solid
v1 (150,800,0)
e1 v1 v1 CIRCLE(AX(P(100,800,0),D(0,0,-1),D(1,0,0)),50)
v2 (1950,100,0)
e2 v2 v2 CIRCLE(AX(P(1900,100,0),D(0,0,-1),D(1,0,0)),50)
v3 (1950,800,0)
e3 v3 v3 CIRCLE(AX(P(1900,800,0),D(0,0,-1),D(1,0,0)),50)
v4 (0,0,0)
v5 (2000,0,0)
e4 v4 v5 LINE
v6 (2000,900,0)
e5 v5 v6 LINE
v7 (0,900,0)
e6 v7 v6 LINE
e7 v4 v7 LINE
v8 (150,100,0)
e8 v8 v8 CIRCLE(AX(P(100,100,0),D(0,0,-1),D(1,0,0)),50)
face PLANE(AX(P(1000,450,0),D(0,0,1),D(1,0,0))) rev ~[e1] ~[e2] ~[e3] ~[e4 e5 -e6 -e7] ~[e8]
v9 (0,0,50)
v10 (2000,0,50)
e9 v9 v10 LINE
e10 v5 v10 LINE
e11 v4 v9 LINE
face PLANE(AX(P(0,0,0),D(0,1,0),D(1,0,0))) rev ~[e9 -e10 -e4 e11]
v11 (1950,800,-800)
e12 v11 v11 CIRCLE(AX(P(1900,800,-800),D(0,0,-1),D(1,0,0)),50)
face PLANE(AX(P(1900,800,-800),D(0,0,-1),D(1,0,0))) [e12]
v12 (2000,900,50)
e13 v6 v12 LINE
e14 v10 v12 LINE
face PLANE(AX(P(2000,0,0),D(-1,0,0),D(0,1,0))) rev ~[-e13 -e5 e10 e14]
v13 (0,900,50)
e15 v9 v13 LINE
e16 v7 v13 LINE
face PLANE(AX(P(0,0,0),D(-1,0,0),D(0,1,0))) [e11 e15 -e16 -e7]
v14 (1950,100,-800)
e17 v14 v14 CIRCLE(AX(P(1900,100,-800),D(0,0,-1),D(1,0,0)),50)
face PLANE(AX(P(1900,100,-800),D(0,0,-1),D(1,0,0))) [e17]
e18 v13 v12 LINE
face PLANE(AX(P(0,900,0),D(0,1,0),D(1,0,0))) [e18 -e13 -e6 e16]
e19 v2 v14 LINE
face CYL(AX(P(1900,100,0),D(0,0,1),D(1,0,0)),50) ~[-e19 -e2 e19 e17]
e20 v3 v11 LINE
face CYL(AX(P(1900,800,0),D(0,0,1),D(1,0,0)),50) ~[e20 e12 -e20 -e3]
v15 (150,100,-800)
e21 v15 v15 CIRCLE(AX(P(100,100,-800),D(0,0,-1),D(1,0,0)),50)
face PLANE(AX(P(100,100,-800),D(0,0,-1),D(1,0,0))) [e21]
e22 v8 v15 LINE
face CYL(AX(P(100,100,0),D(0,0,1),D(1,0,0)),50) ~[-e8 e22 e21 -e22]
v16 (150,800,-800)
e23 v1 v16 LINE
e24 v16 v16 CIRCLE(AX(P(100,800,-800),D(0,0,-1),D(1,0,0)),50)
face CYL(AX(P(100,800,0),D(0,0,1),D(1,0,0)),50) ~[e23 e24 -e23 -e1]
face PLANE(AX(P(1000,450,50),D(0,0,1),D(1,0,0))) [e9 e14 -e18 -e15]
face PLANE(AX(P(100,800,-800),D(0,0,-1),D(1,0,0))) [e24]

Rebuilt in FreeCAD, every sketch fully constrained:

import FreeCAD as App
import Part
import Sketcher
Q = App.Units.Quantity

doc = App.newDocument("Part")
body = doc.addObject("PartDesign::Body", "Body")

# Sketch on XY plane
sketch1 = doc.addObject("Sketcher::SketchObject", "Sketch")
body.addObject(sketch1)
sketch1.AttachmentSupport = (doc.XY_Plane, [""])
sketch1.MapMode = "FlatFace"
sketch1.addGeometry([
    Part.LineSegment(App.Vector(0, 900, 0), App.Vector(0, 0, 0)),
    Part.LineSegment(App.Vector(0, 0, 0), App.Vector(2000, 0, 0)),
    Part.LineSegment(App.Vector(2000, 0, 0), App.Vector(2000, 900, 0)),
    Part.LineSegment(App.Vector(2000, 900, 0), App.Vector(0, 900, 0)),
], False)
sketch1.addConstraint([
    Sketcher.Constraint("Coincident", 0, 2, 1, 1),
    Sketcher.Constraint("Coincident", 1, 2, 2, 1),
    Sketcher.Constraint("Coincident", 2, 2, 3, 1),
    Sketcher.Constraint("Coincident", 3, 2, 0, 1),
    Sketcher.Constraint("Vertical", 0),
    Sketcher.Constraint("Horizontal", 1),
    Sketcher.Constraint("Vertical", 2),
    Sketcher.Constraint("Horizontal", 3),
    Sketcher.Constraint("Coincident", 0, 2, -1, 1),
    Sketcher.Constraint("DistanceX", 1, 1, 1, 2, Q("2000 mm")),
    Sketcher.Constraint("DistanceY", 0, 2, 0, 1, Q("900 mm")),
])
pad1 = doc.addObject("PartDesign::Pad", "Pad")
body.addObject(pad1)
pad1.Profile = sketch1
pad1.Length = 50

# Sketch on XY plane
sketch2 = doc.addObject("Sketcher::SketchObject", "Sketch001")
body.addObject(sketch2)
sketch2.AttachmentSupport = (doc.XY_Plane, [""])
sketch2.MapMode = "FlatFace"
sketch2.addGeometry([
    Part.Circle(App.Vector(100, 100, 0), App.Vector(0, 0, 1), 50),
    Part.Circle(App.Vector(1900, 100, 0), App.Vector(0, 0, 1), 50),
    Part.Circle(App.Vector(1900, 800, 0), App.Vector(0, 0, 1), 50),
    Part.Circle(App.Vector(100, 800, 0), App.Vector(0, 0, 1), 50),
], False)
sketch2.addConstraint([
    Sketcher.Constraint("Equal", 0, 1),
    Sketcher.Constraint("Equal", 1, 2),
    Sketcher.Constraint("Equal", 2, 3),
    Sketcher.Constraint("Horizontal", 0, 3, 1, 3),
    Sketcher.Constraint("Horizontal", 2, 3, 3, 3),
    Sketcher.Constraint("Vertical", 1, 3, 2, 3),
    Sketcher.Constraint("Vertical", 0, 3, 3, 3),
    Sketcher.Constraint("Diameter", 0, Q("100 mm")),
    Sketcher.Constraint("DistanceX", -1, 1, 0, 3, Q("100 mm")),
    Sketcher.Constraint("DistanceY", -1, 1, 0, 3, Q("100 mm")),
    Sketcher.Constraint("DistanceX", -1, 1, 1, 3, Q("1900 mm")),
    Sketcher.Constraint("DistanceY", -1, 1, 2, 3, Q("800 mm")),
])
pad2 = doc.addObject("PartDesign::Pad", "Pad001")
body.addObject(pad2)
pad2.Profile = sketch2
pad2.Length = 800
pad2.Reversed = True

doc.recompute()
